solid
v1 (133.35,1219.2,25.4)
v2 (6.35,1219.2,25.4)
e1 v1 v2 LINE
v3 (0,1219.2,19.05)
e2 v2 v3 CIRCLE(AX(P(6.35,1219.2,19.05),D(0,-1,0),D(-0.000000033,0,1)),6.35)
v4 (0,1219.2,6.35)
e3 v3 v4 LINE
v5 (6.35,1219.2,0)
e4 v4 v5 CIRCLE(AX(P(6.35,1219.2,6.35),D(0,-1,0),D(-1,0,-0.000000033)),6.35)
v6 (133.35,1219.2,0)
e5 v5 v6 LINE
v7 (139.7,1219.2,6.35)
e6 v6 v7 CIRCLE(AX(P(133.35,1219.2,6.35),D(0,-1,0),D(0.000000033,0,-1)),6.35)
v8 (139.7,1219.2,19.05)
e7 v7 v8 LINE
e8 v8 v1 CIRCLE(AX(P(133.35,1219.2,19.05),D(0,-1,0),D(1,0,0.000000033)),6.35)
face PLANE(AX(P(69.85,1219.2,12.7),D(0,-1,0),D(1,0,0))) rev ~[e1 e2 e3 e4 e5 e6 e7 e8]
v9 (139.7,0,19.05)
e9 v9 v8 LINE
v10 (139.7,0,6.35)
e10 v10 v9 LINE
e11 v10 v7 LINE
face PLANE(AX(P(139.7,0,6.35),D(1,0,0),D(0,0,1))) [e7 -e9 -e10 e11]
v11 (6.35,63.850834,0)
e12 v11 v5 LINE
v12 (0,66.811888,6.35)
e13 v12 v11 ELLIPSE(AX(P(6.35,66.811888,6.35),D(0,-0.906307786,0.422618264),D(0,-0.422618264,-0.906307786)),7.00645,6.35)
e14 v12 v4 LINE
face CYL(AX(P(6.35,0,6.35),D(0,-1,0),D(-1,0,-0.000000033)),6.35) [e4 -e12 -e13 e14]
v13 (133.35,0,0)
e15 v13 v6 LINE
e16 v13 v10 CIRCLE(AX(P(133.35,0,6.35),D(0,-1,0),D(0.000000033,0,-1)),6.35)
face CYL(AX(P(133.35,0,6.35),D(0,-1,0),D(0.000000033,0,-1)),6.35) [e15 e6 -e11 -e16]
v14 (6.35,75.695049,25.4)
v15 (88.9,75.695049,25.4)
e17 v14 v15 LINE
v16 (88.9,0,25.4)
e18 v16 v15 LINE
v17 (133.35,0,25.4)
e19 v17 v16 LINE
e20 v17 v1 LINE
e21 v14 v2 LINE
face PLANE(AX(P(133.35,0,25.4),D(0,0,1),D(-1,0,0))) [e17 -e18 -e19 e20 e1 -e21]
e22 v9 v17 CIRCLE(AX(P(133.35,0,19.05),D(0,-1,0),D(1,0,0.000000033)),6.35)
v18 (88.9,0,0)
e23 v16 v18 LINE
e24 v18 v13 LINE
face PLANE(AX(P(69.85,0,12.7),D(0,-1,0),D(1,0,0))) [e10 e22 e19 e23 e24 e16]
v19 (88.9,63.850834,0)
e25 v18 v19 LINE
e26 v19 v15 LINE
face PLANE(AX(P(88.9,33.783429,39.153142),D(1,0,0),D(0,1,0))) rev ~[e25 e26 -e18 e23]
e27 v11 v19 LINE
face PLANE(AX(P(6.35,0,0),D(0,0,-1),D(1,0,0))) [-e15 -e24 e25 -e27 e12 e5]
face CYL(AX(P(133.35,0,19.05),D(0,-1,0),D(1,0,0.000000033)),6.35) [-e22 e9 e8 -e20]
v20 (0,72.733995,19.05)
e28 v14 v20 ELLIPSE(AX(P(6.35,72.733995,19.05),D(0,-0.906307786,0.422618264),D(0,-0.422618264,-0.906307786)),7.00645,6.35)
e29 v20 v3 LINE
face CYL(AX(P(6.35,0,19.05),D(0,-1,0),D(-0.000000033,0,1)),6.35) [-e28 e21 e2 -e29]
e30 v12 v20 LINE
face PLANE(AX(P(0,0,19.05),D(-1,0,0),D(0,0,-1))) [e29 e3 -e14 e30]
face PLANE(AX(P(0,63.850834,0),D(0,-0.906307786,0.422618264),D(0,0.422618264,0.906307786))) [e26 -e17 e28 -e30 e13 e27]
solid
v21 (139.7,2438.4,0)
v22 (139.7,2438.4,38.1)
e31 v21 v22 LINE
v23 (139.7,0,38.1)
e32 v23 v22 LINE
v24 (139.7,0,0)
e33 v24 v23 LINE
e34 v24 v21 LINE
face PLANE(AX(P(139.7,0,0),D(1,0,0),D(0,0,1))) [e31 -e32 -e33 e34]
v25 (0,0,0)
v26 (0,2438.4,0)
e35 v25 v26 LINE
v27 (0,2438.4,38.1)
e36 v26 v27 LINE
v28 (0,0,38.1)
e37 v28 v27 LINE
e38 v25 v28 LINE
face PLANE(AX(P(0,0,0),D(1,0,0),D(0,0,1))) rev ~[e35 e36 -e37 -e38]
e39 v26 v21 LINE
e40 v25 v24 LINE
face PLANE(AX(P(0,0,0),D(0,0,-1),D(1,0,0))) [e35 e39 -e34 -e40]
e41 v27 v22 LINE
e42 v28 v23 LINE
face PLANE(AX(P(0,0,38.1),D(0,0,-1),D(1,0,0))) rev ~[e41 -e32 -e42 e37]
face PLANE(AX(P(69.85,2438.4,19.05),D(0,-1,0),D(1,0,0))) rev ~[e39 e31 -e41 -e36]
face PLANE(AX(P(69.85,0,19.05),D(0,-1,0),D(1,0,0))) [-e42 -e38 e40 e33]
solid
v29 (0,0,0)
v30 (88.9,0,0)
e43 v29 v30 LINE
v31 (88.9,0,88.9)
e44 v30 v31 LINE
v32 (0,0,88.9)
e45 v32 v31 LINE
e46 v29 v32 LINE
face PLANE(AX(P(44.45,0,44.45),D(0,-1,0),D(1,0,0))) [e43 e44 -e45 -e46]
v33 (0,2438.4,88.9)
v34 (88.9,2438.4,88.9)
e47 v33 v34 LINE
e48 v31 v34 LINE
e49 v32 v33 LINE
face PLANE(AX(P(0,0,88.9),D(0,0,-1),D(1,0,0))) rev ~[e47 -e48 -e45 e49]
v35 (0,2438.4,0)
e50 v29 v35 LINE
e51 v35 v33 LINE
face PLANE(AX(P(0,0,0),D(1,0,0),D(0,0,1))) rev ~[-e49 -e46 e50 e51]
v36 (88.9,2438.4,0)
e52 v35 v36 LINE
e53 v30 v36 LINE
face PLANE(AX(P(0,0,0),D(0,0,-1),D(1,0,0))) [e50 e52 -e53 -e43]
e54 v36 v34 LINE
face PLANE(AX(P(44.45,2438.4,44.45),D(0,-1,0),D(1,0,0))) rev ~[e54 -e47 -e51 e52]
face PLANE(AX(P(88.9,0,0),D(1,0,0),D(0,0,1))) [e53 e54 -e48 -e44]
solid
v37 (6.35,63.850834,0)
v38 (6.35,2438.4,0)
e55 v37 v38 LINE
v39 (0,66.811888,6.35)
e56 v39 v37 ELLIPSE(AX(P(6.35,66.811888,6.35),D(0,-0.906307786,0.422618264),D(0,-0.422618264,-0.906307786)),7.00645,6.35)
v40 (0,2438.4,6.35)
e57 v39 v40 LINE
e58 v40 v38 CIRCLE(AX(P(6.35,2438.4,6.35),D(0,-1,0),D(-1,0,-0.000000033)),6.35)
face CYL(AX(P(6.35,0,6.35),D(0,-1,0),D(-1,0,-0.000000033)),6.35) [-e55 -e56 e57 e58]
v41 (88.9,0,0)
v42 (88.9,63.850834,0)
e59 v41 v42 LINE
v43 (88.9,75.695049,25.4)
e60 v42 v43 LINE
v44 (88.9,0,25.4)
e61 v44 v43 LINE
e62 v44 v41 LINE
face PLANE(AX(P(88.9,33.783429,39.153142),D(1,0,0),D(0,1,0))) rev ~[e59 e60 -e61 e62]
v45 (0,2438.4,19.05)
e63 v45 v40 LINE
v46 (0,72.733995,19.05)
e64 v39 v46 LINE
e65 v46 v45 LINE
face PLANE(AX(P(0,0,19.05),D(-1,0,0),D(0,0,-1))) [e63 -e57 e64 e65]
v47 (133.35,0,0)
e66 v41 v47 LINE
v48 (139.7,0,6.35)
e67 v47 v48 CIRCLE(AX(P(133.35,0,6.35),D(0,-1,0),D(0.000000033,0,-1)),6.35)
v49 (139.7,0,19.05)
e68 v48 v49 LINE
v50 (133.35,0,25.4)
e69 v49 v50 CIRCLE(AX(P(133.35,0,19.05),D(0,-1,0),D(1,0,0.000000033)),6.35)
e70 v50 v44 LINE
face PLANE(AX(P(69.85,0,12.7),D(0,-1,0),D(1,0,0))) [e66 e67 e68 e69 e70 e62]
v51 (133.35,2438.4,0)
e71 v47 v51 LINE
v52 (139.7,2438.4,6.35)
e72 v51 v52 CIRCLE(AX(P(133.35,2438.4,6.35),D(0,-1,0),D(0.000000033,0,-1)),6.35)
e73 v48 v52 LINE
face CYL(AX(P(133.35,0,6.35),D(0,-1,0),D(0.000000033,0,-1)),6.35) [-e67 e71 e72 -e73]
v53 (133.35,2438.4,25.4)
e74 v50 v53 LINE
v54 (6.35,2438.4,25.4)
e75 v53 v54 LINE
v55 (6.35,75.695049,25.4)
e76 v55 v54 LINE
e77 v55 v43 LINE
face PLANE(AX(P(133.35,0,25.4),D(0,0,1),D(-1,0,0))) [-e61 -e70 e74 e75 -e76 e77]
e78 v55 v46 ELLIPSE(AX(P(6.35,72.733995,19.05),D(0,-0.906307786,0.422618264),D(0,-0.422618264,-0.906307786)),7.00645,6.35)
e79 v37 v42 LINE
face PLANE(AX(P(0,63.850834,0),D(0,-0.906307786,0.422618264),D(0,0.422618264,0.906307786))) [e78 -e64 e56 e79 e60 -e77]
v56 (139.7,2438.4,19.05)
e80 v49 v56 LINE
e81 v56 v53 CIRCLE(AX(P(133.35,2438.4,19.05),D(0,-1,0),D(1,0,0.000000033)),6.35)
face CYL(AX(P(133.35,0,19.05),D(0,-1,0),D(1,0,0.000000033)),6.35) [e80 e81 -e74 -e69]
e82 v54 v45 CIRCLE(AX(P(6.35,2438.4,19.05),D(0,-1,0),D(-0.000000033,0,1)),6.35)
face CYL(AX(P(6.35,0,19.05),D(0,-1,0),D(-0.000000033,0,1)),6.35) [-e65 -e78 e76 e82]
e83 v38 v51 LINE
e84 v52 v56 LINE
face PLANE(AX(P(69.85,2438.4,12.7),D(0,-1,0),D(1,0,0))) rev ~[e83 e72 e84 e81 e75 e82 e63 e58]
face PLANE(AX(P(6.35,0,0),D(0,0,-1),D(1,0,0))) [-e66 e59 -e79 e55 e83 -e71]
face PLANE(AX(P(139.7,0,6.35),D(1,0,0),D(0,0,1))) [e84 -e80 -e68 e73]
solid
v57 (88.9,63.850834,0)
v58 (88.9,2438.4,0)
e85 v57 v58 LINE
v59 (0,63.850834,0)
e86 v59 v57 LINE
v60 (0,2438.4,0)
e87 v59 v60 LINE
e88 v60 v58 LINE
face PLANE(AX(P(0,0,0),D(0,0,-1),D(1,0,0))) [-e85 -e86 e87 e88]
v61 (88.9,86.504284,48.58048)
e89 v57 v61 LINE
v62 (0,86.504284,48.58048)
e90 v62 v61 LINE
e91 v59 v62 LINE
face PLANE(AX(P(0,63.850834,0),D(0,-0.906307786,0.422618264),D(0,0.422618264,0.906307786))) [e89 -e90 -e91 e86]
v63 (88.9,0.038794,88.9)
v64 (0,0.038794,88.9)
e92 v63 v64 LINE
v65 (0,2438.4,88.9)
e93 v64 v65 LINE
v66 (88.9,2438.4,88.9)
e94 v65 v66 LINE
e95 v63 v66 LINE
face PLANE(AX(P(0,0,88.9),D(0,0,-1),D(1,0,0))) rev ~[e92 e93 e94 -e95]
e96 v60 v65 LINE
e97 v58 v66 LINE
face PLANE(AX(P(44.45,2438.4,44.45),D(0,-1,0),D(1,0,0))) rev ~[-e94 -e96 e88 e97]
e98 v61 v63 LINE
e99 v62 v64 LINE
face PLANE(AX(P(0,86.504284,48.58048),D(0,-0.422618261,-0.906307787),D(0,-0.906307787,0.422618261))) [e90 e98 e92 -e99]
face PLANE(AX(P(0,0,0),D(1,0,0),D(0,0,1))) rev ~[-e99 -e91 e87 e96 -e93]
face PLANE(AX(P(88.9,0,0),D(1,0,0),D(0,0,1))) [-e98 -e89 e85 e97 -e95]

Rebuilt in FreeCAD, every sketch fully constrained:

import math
import FreeCAD as App
import Part
import Sketcher

V = App.Vector
Q = App.Units.Quantity

doc = App.newDocument("Part")
body = doc.addObject("PartDesign::Body", "Body")

# Sketch on XZ plane
sketch1 = doc.addObject("Sketcher::SketchObject", "Sketch")
body.addObject(sketch1)
sketch1.AttachmentSupport = (doc.XZ_Plane, [""])
sketch1.MapMode = "FlatFace"
sketch1.addGeometry(Part.LineSegment(V(0, 89, 0), V(0, 0, 0)), False)
sketch1.addGeometry(Part.LineSegment(V(0, 0, 0), V(89, 0, 0)), False)
sketch1.addGeometry(Part.LineSegment(V(89, 0, 0), V(89, 89, 0)), False)
sketch1.addGeometry(Part.LineSegment(V(89, 89, 0), V(0, 89, 0)), False)
sketch1.addConstraint(Sketcher.Constraint("Coincident", 0, 2, 1, 1))
sketch1.addConstraint(Sketcher.Constraint("Coincident", 1, 2, 2, 1))
sketch1.addConstraint(Sketcher.Constraint("Coincident", 2, 2, 3, 1))
sketch1.addConstraint(Sketcher.Constraint("Coincident", 3, 2, 0, 1))
sketch1.addConstraint(Sketcher.Constraint("Vertical", 0))
sketch1.addConstraint(Sketcher.Constraint("Horizontal", 1))
sketch1.addConstraint(Sketcher.Constraint("Vertical", 2))
sketch1.addConstraint(Sketcher.Constraint("Horizontal", 3))
sketch1.addConstraint(Sketcher.Constraint("Coincident", 0, 2, -1, 1))
sketch1.addConstraint(Sketcher.Constraint("Equal", 3, 0))
sketch1.addConstraint(Sketcher.Constraint("DistanceX", 1, 1, 1, 2, Q("3.5 in")))
pad1 = doc.addObject("PartDesign::Pad", "Pad")
body.addObject(pad1)
pad1.Profile = sketch1
pad1.Length = Q("96 in")
pad1.Reversed = True
body2 = doc.addObject("PartDesign::Body", "Body001")

# Sketch on XZ plane
sketch2 = doc.addObject("Sketcher::SketchObject", "Sketch001")
body2.addObject(sketch2)
sketch2.AttachmentSupport = (doc.getObject("XZ_Plane001"), [""])
sketch2.MapMode = "FlatFace"
sketch2.addGeometry(Part.ArcOfCircle(Part.Circle(V(6, 6, 0), V(0, 0, 1), 6), math.radians(-180), math.radians(-90)), False)
sketch2.addGeometry(Part.LineSegment(V(6, 0, 0), V(133, 0, 0)), False)
sketch2.addGeometry(Part.ArcOfCircle(Part.Circle(V(133, 6, 0), V(0, 0, 1), 6), math.radians(-90), math.radians(0)), False)
sketch2.addGeometry(Part.LineSegment(V(140, 6, 0), V(140, 19, 0)), False)
sketch2.addGeometry(Part.ArcOfCircle(Part.Circle(V(133, 19, 0), V(0, 0, 1), 6), math.radians(0), math.radians(90)), False)
sketch2.addGeometry(Part.LineSegment(V(133, 25, 0), V(6, 25, 0)), False)
sketch2.addGeometry(Part.ArcOfCircle(Part.Circle(V(6, 19, 0), V(0, 0, 1), 6), math.radians(90), math.radians(180)), False)
sketch2.addGeometry(Part.LineSegment(V(0, 19, 0), V(0, 6, 0)), False)
sketch2.addConstraint(Sketcher.Constraint("Tangent", 0, 2, 1, 1))
sketch2.addConstraint(Sketcher.Constraint("Tangent", 1, 2, 2, 1))
sketch2.addConstraint(Sketcher.Constraint("Tangent", 2, 2, 3, 1))
sketch2.addConstraint(Sketcher.Constraint("Tangent", 3, 2, 4, 1))
sketch2.addConstraint(Sketcher.Constraint("Tangent", 4, 2, 5, 1))
sketch2.addConstraint(Sketcher.Constraint("Tangent", 5, 2, 6, 1))
sketch2.addConstraint(Sketcher.Constraint("Tangent", 6, 2, 7, 1))
sketch2.addConstraint(Sketcher.Constraint("Tangent", 7, 2, 0, 1))
sketch2.addConstraint(Sketcher.Constraint("Horizontal", 1))
sketch2.addConstraint(Sketcher.Constraint("Vertical", 3))
sketch2.addConstraint(Sketcher.Constraint("Horizontal", 5))
sketch2.addConstraint(Sketcher.Constraint("Vertical", 7))
sketch2.addConstraint(Sketcher.Constraint("Equal", 0, 2))
sketch2.addConstraint(Sketcher.Constraint("Equal", 2, 4))
sketch2.addConstraint(Sketcher.Constraint("Equal", 4, 6))
sketch2.addConstraint(Sketcher.Constraint("PointOnObject", 0, 2, -1))
sketch2.addConstraint(Sketcher.Constraint("PointOnObject", 6, 2, -2))
sketch2.addConstraint(Sketcher.Constraint("DistanceX", 1, 1, 1, 2, Q("5 in")))
sketch2.addConstraint(Sketcher.Constraint("Radius", 0, Q("0.25 in")))
sketch2.addConstraint(Sketcher.Constraint("DistanceY", 3, 1, 3, 2, Q("0.5 in")))
pad2 = doc.addObject("PartDesign::Pad", "Pad001")
body2.addObject(pad2)
pad2.Profile = sketch2
pad2.Length = Q("48 in")
pad2.Reversed = True
body3 = doc.addObject("PartDesign::Body", "Body002")

# Sketch on XZ plane
sketch3 = doc.addObject("Sketcher::SketchObject", "Sketch002")
body3.addObject(sketch3)
sketch3.AttachmentSupport = (doc.getObject("XZ_Plane002"), [""])
sketch3.MapMode = "FlatFace"
sketch3.addGeometry(Part.ArcOfCircle(Part.Circle(V(6, 6, 0), V(0, 0, 1), 6), math.radians(-180), math.radians(-90)), False)
sketch3.addGeometry(Part.LineSegment(V(6, 0, 0), V(133, 0, 0)), False)
sketch3.addGeometry(Part.ArcOfCircle(Part.Circle(V(133, 6, 0), V(0, 0, 1), 6), math.radians(-90), math.radians(0)), False)
sketch3.addGeometry(Part.LineSegment(V(140, 6, 0), V(140, 19, 0)), False)
sketch3.addGeometry(Part.ArcOfCircle(Part.Circle(V(133, 19, 0), V(0, 0, 1), 6), math.radians(0), math.radians(90)), False)
sketch3.addGeometry(Part.LineSegment(V(133, 25, 0), V(6, 25, 0)), False)
sketch3.addGeometry(Part.ArcOfCircle(Part.Circle(V(6, 19, 0), V(0, 0, 1), 6), math.radians(90), math.radians(180)), False)
sketch3.addGeometry(Part.LineSegment(V(0, 19, 0), V(0, 6, 0)), False)
sketch3.addConstraint(Sketcher.Constraint("Tangent", 0, 2, 1, 1))
sketch3.addConstraint(Sketcher.Constraint("Tangent", 1, 2, 2, 1))
sketch3.addConstraint(Sketcher.Constraint("Tangent", 2, 2, 3, 1))
sketch3.addConstraint(Sketcher.Constraint("Tangent", 3, 2, 4, 1))
sketch3.addConstraint(Sketcher.Constraint("Tangent", 4, 2, 5, 1))
sketch3.addConstraint(Sketcher.Constraint("Tangent", 5, 2, 6, 1))
sketch3.addConstraint(Sketcher.Constraint("Tangent", 6, 2, 7, 1))
sketch3.addConstraint(Sketcher.Constraint("Tangent", 7, 2, 0, 1))
sketch3.addConstraint(Sketcher.Constraint("Horizontal", 1))
sketch3.addConstraint(Sketcher.Constraint("Vertical", 3))
sketch3.addConstraint(Sketcher.Constraint("Horizontal", 5))
sketch3.addConstraint(Sketcher.Constraint("Vertical", 7))
sketch3.addConstraint(Sketcher.Constraint("Equal", 0, 2))
sketch3.addConstraint(Sketcher.Constraint("Equal", 2, 4))
sketch3.addConstraint(Sketcher.Constraint("Equal", 4, 6))
sketch3.addConstraint(Sketcher.Constraint("PointOnObject", 0, 2, -1))
sketch3.addConstraint(Sketcher.Constraint("PointOnObject", 6, 2, -2))
sketch3.addConstraint(Sketcher.Constraint("DistanceX", 1, 1, 1, 2, Q("5 in")))
sketch3.addConstraint(Sketcher.Constraint("Radius", 0, Q("0.25 in")))
sketch3.addConstraint(Sketcher.Constraint("DistanceY", 3, 1, 3, 2, Q("0.5 in")))
pad3 = doc.addObject("PartDesign::Pad", "Pad002")
body3.addObject(pad3)
pad3.Profile = sketch3
pad3.Length = Q("96 in")
pad3.Reversed = True
body4 = doc.addObject("PartDesign::Body", "Body003")

# Sketch on YZ plane
sketch4 = doc.addObject("Sketcher::SketchObject", "Sketch003")
body4.addObject(sketch4)
sketch4.AttachmentSupport = (doc.getObject("YZ_Plane003"), [""])
sketch4.MapMode = "FlatFace"
sketch4.addGeometry(Part.LineSegment(V(87, 49, 0), V(0, 89, 0)), False)
sketch4.addGeometry(Part.LineSegment(V(0, 89, 0), V(0, 0, 0)), False)
sketch4.addGeometry(Part.LineSegment(V(0, 0, 0), V(64, 0, 0)), False)
sketch4.addGeometry(Part.LineSegment(V(64, 0, 0), V(87, 49, 0)), False)
sketch4.addConstraint(Sketcher.Constraint("Coincident", 0, 2, 1, 1))
sketch4.addConstraint(Sketcher.Constraint("Coincident", 1, 2, 2, 1))
sketch4.addConstraint(Sketcher.Constraint("Coincident", 2, 2, 3, 1))
sketch4.addConstraint(Sketcher.Constraint("Coincident", 3, 2, 0, 1))
sketch4.addConstraint(Sketcher.Constraint("Vertical", 1))
sketch4.addConstraint(Sketcher.Constraint("Horizontal", 2))
sketch4.addConstraint(Sketcher.Constraint("Coincident", 1, 2, -1, 1))
sketch4.addConstraint(Sketcher.Constraint("Perpendicular", 0, 3))
sketch4.addConstraint(Sketcher.Constraint("Angle", 0, Q("155 deg")))
sketch4.addConstraint(Sketcher.Constraint("DistanceY", 1, 2, 1, 1, Q("88.91809 mm")))
sketch4.addConstraint(Sketcher.Constraint("Distance", 3, Q("53.602629 mm")))
pad4 = doc.addObject("PartDesign::Pad", "Pad003")
body4.addObject(pad4)
pad4.Profile = sketch4
pad4.Length = Q("3.5 in")
doc.recompute()

body5 = doc.addObject("PartDesign::Body", "Body004")
body5.BaseFeature = body4
boolean = doc.addObject("PartDesign::Boolean", "Boolean")
body.addObject(boolean)
boolean.Type = "Cut"
boolean.addObjects([body5])
doc.recompute()

body6 = doc.addObject("PartDesign::Body", "Body005")
body6.BaseFeature = body4
boolean2 = doc.addObject("PartDesign::Boolean", "Boolean001")
body2.addObject(boolean2)
boolean2.Type = "Cut"
boolean2.addObjects([body6])
doc.recompute()

boolean3 = doc.addObject("PartDesign::Boolean", "Boolean002")
body3.addObject(boolean3)
boolean3.Type = "Cut"
boolean3.addObjects([body4])
body7 = doc.addObject("PartDesign::Body", "Body006")

# Sketch on XZ plane
sketch5 = doc.addObject("Sketcher::SketchObject", "Sketch004")
body7.addObject(sketch5)
sketch5.AttachmentSupport = (doc.getObject("XZ_Plane006"), [""])
sketch5.MapMode = "FlatFace"
sketch5.addGeometry(Part.LineSegment(V(0, 89, 0), V(0, 0, 0)), False)
sketch5.addGeometry(Part.LineSegment(V(0, 0, 0), V(89, 0, 0)), False)
sketch5.addGeometry(Part.LineSegment(V(89, 0, 0), V(89, 89, 0)), False)
sketch5.addGeometry(Part.LineSegment(V(89, 89, 0), V(0, 89, 0)), False)
sketch5.addConstraint(Sketcher.Constraint("Coincident", 0, 2, 1, 1))
sketch5.addConstraint(Sketcher.Constraint("Coincident", 1, 2, 2, 1))
sketch5.addConstraint(Sketcher.Constraint("Coincident", 2, 2, 3, 1))
sketch5.addConstraint(Sketcher.Constraint("Coincident", 3, 2, 0, 1))
sketch5.addConstraint(Sketcher.Constraint("Vertical", 0))
sketch5.addConstraint(Sketcher.Constraint("Horizontal", 1))
sketch5.addConstraint(Sketcher.Constraint("Vertical", 2))
sketch5.addConstraint(Sketcher.Constraint("Horizontal", 3))
sketch5.addConstraint(Sketcher.Constraint("Coincident", 0, 2, -1, 1))
sketch5.addConstraint(Sketcher.Constraint("Equal", 3, 0))
sketch5.addConstraint(Sketcher.Constraint("DistanceX", 1, 1, 1, 2, Q("3.5 in")))
pad5 = doc.addObject("PartDesign::Pad", "Pad004")
body7.addObject(pad5)
pad5.Profile = sketch5
pad5.Length = Q("96 in")
pad5.Reversed = True
body8 = doc.addObject("PartDesign::Body", "Body007")

# Sketch on XZ plane
sketch6 = doc.addObject("Sketcher::SketchObject", "Sketch005")
body8.addObject(sketch6)
sketch6.AttachmentSupport = (doc.getObject("XZ_Plane007"), [""])
sketch6.MapMode = "FlatFace"
sketch6.addGeometry(Part.LineSegment(V(0, 38, 0), V(0, 0, 0)), False)
sketch6.addGeometry(Part.LineSegment(V(0, 0, 0), V(140, 0, 0)), False)
sketch6.addGeometry(Part.LineSegment(V(140, 0, 0), V(140, 38, 0)), False)
sketch6.addGeometry(Part.LineSegment(V(140, 38, 0), V(0, 38, 0)), False)
sketch6.addConstraint(Sketcher.Constraint("Coincident", 0, 2, 1, 1))
sketch6.addConstraint(Sketcher.Constraint("Coincident", 1, 2, 2, 1))
sketch6.addConstraint(Sketcher.Constraint("Coincident", 2, 2, 3, 1))
sketch6.addConstraint(Sketcher.Constraint("Coincident", 3, 2, 0, 1))
sketch6.addConstraint(Sketcher.Constraint("Vertical", 0))
sketch6.addConstraint(Sketcher.Constraint("Horizontal", 1))
sketch6.addConstraint(Sketcher.Constraint("Vertical", 2))
sketch6.addConstraint(Sketcher.Constraint("Horizontal", 3))
sketch6.addConstraint(Sketcher.Constraint("Coincident", 0, 2, -1, 1))
sketch6.addConstraint(Sketcher.Constraint("DistanceX", 1, 1, 1, 2, Q("5.5 in")))
sketch6.addConstraint(Sketcher.Constraint("DistanceY", 0, 2, 0, 1, Q("1.5 in")))
pad6 = doc.addObject("PartDesign::Pad", "Pad005")
body8.addObject(pad6)
pad6.Profile = sketch6
pad6.Length = Q("96 in")
pad6.Reversed = True

doc.recompute()
